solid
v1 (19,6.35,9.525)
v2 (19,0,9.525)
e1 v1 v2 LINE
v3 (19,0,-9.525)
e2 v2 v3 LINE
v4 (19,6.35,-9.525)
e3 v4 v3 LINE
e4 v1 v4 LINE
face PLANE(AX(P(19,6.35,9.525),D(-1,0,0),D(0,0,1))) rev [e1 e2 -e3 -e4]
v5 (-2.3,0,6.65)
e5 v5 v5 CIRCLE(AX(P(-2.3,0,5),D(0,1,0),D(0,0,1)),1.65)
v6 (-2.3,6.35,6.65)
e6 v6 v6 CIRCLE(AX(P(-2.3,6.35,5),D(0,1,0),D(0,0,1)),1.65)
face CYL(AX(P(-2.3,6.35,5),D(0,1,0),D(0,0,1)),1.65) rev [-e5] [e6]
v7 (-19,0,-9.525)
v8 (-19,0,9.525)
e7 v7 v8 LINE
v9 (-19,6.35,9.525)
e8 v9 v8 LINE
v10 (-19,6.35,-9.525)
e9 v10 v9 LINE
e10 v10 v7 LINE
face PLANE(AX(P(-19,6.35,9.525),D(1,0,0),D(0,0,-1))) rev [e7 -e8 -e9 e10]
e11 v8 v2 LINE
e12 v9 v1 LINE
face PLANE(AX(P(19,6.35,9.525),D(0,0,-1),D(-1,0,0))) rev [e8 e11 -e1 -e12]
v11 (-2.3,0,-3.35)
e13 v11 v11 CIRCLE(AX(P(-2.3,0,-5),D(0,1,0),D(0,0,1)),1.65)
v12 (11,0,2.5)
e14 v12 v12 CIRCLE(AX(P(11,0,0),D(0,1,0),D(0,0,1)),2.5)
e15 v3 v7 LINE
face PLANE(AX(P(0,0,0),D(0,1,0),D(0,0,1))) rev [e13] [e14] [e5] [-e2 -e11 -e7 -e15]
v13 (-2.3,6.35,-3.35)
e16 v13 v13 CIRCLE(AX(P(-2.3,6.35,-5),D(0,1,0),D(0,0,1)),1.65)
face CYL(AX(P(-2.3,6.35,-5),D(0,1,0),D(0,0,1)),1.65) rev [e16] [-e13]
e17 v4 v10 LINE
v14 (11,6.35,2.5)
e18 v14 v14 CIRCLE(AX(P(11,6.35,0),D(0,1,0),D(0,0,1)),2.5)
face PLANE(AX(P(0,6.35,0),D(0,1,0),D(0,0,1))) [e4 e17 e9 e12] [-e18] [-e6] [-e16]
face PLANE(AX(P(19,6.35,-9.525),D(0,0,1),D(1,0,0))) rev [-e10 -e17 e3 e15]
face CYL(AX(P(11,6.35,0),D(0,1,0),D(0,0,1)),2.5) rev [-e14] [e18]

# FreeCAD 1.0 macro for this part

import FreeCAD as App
import Part
import Sketcher
from FreeCAD import Vector
Q = App.Units.Quantity

doc = App.newDocument("Part")
params = doc.addObject("Spreadsheet::Sheet", "Params")
for row, (alias, value) in enumerate([
    ("sketch1_width", "38 mm"),
    ("sketch1_height", "19.05 mm"),
    ("pad1_length", "6.35 mm"),
    ("sketch2_diameter", "3.3 mm"),
    ("hole_diameter", "3.3 mm"),
    ("sketch3_diameter", "5 mm"),
    ("hole2_diameter", "5 mm"),
], start=1):
    params.set(f"A{row}", alias)
    params.set(f"B{row}", "=" + value)
    params.setAlias(f"B{row}", alias)

body = doc.addObject("PartDesign::Body", "Body")

# Sketch on XZ plane
sketch1 = doc.addObject("Sketcher::SketchObject", "Sketch")
body.addObject(sketch1)
sketch1.AttachmentSupport = (doc.XZ_Plane, [""])
sketch1.MapMode = "FlatFace"
sketch1.addGeometry(Part.LineSegment(Vector(-19, -10, 0), Vector(-19, 10, 0)), False)
sketch1.addGeometry(Part.LineSegment(Vector(-19, 10, 0), Vector(19, 10, 0)), False)
sketch1.addGeometry(Part.LineSegment(Vector(19, 10, 0), Vector(19, -10, 0)), False)
sketch1.addGeometry(Part.LineSegment(Vector(19, -10, 0), Vector(-19, -10, 0)), False)
sketch1.addConstraint(Sketcher.Constraint("Coincident", 0, 2, 1, 1))
sketch1.addConstraint(Sketcher.Constraint("Coincident", 1, 2, 2, 1))
sketch1.addConstraint(Sketcher.Constraint("Coincident", 2, 2, 3, 1))
sketch1.addConstraint(Sketcher.Constraint("Coincident", 3, 2, 0, 1))
sketch1.addConstraint(Sketcher.Constraint("Vertical", 0))
sketch1.addConstraint(Sketcher.Constraint("Horizontal", 1))
sketch1.addConstraint(Sketcher.Constraint("Vertical", 2))
sketch1.addConstraint(Sketcher.Constraint("Horizontal", 3))
sketch1.addConstraint(Sketcher.Constraint("Symmetric", 0, 2, 2, 2, -1, 1))
sketch1.addConstraint(Sketcher.Constraint("DistanceX", 1, 1, 1, 2, Q("38 mm")))
sketch1.addConstraint(Sketcher.Constraint("DistanceY", 0, 1, 0, 2, Q("19.05 mm")))
sketch1.setExpression("Constraints[9]", "Params.sketch1_width")
sketch1.setExpression("Constraints[10]", "Params.sketch1_height")
pad1 = doc.addObject("PartDesign::Pad", "Pad")
body.addObject(pad1)
pad1.Profile = sketch1
pad1.setExpression("Length", "Params.pad1_length")
pad1.Reversed = True

# Sketch on XZ plane
sketch2 = doc.addObject("Sketcher::SketchObject", "Sketch001")
body.addObject(sketch2)
sketch2.AttachmentSupport = (doc.XZ_Plane, [""])
sketch2.MapMode = "FlatFace"
sketch2.AttachmentOffset = App.Placement(Vector(0, 0, -6.35), App.Rotation())
sketch2.addGeometry(Part.Circle(Vector(-2.3, -5, 0), Vector(0, 0, 1), 1.6), False)
sketch2.addGeometry(Part.Circle(Vector(-2.3, 5, 0), Vector(0, 0, 1), 1.6), False)
sketch2.addConstraint(Sketcher.Constraint("Equal", 0, 1))
sketch2.addConstraint(Sketcher.Constraint("Symmetric", 0, 3, 1, 3, -1))
sketch2.addConstraint(Sketcher.Constraint("Diameter", 0, Q("3.3 mm")))
sketch2.addConstraint(Sketcher.Constraint("DistanceY", 0, 3, -1, 1, Q("5 mm")))
sketch2.addConstraint(Sketcher.Constraint("DistanceX", 0, 3, -1, 1, Q("2.3 mm")))
sketch2.setExpression("Constraints[2]", "Params.sketch2_diameter")
doc.recompute()
hole = doc.addObject("PartDesign::Hole", "Hole")
body.addObject(hole)
hole.Profile = sketch2
hole.ThreadType = "None"
hole.setExpression("Diameter", "Params.hole_diameter")
hole.DepthType = "ThroughAll"
hole.Reversed = True

# Sketch on XZ plane
sketch3 = doc.addObject("Sketcher::SketchObject", "Sketch002")
body.addObject(sketch3)
sketch3.AttachmentSupport = (doc.XZ_Plane, [""])
sketch3.MapMode = "FlatFace"
sketch3.AttachmentOffset = App.Placement(Vector(0, 0, -6.35), App.Rotation())
sketch3.addGeometry(Part.Circle(Vector(11, 0, 0), Vector(0, 0, 1), 2.5), False)
sketch3.addConstraint(Sketcher.Constraint("PointOnObject", 0, 3, -1))
sketch3.addConstraint(Sketcher.Constraint("Diameter", 0, Q("5 mm")))
sketch3.addConstraint(Sketcher.Constraint("DistanceX", -1, 1, 0, 3, Q("11 mm")))
sketch3.setExpression("Constraints[1]", "Params.sketch3_diameter")
doc.recompute()
hole2 = doc.addObject("PartDesign::Hole", "Hole001")
body.addObject(hole2)
hole2.Profile = sketch3
hole2.ThreadType = "None"
hole2.setExpression("Diameter", "Params.hole2_diameter")
hole2.DepthType = "ThroughAll"
hole2.Reversed = True

doc.recompute()
